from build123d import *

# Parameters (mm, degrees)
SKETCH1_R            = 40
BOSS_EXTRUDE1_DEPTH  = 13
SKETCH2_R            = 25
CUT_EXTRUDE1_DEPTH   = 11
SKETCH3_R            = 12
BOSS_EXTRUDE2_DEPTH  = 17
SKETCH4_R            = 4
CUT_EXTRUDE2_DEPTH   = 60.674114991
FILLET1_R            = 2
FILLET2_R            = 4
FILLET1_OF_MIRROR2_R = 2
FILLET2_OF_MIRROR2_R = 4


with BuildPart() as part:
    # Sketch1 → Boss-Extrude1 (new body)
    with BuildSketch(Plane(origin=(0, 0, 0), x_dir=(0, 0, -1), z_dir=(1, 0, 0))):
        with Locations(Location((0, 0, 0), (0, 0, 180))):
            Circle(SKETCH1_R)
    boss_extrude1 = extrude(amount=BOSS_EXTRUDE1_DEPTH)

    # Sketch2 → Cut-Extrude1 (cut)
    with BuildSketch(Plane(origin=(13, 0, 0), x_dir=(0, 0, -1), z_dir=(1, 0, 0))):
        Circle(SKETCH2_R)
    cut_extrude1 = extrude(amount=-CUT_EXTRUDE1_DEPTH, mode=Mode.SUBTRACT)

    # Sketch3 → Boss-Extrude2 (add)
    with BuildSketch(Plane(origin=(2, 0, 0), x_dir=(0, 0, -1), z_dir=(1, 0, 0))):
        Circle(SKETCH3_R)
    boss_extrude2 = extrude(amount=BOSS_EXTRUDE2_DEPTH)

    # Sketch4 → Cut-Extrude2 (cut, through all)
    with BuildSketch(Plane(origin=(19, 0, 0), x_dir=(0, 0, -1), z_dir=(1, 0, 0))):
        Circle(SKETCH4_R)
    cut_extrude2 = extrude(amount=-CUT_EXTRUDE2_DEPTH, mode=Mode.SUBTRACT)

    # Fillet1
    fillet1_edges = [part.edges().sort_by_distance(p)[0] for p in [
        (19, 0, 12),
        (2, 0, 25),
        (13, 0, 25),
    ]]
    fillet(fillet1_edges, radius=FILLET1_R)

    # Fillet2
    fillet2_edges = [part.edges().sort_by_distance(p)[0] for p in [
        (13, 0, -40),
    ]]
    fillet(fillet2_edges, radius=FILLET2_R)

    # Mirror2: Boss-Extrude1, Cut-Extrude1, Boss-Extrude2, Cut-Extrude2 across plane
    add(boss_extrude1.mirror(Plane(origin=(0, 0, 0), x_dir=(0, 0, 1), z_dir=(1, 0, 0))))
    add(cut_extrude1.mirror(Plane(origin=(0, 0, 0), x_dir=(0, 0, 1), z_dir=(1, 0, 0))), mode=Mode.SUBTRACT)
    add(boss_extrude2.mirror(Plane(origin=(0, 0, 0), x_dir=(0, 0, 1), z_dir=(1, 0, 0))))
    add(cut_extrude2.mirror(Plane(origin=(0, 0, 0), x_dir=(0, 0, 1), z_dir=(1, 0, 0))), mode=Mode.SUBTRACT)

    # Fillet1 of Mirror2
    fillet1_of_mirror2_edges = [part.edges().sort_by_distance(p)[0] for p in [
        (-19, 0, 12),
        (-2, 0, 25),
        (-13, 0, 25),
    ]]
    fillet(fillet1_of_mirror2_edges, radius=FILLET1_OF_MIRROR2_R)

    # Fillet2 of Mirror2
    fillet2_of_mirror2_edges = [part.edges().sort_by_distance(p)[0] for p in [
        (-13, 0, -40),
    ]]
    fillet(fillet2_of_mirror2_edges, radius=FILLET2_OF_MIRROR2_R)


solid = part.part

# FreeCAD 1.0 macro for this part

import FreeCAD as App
import Part
import Sketcher
Q = App.Units.Quantity


def edges_at(feature, points):
    """Names of the edges that pass closest to the given points."""
    edges = feature.Shape.Edges
    near = lambda p: min(range(len(edges)), key=lambda i: edges[i].distToShape(Part.Vertex(*p))[0])
    return sorted({f"Edge{near(p) + 1}" for p in points})

doc = App.newDocument("Part")
body = doc.addObject("PartDesign::Body", "Body")

# Sketch on YZ plane
sketch1 = body.newObject("Sketcher::SketchObject", "Sketch")
sketch1.AttachmentSupport = (doc.getObject("YZ_Plane"), [""])
sketch1.MapMode = "FlatFace"
sketch1.addGeometry(Part.Circle(App.Vector(0, 0, 0), App.Vector(0, 0, 1), 40), False)
sketch1.addConstraint([
    Sketcher.Constraint("Coincident", 0, 3, -1, 1),
    Sketcher.Constraint("Diameter", 0, Q("80 mm")),
])
pad1 = body.newObject("PartDesign::Pad", "Pad")
pad1.Profile = sketch1
pad1.Length = 13

# Sketch on YZ plane
sketch2 = body.newObject("Sketcher::SketchObject", "Sketch001")
sketch2.AttachmentSupport = (doc.getObject("YZ_Plane"), [""])
sketch2.MapMode = "FlatFace"
sketch2.AttachmentOffset = App.Placement(App.Vector(0, 0, 13), App.Rotation())
sketch2.addGeometry(Part.Circle(App.Vector(0, 0, 0), App.Vector(0, 0, 1), 25), False)
sketch2.addConstraint([
    Sketcher.Constraint("Coincident", 0, 3, -1, 1),
    Sketcher.Constraint("Diameter", 0, Q("50 mm")),
])
pocket1 = body.newObject("PartDesign::Pocket", "Pocket")
pocket1.Profile = sketch2
pocket1.Length = 11

# Sketch on YZ plane
sketch3 = body.newObject("Sketcher::SketchObject", "Sketch002")
sketch3.AttachmentSupport = (doc.getObject("YZ_Plane"), [""])
sketch3.MapMode = "FlatFace"
sketch3.AttachmentOffset = App.Placement(App.Vector(0, 0, 2), App.Rotation())
sketch3.addGeometry(Part.Circle(App.Vector(0, 0, 0), App.Vector(0, 0, 1), 12), False)
sketch3.addConstraint([
    Sketcher.Constraint("Coincident", 0, 3, -1, 1),
    Sketcher.Constraint("Diameter", 0, Q("24 mm")),
])
pad2 = body.newObject("PartDesign::Pad", "Pad001")
pad2.Profile = sketch3
pad2.Length = 17

# Sketch on YZ plane
sketch4 = body.newObject("Sketcher::SketchObject", "Sketch003")
sketch4.AttachmentSupport = (doc.getObject("YZ_Plane"), [""])
sketch4.MapMode = "FlatFace"
sketch4.AttachmentOffset = App.Placement(App.Vector(0, 0, 19), App.Rotation())
sketch4.addGeometry(Part.Circle(App.Vector(0, 0, 0), App.Vector(0, 0, 1), 4), False)
sketch4.addConstraint([
    Sketcher.Constraint("Coincident", 0, 3, -1, 1),
    Sketcher.Constraint("Diameter", 0, Q("8 mm")),
])
pocket2 = body.newObject("PartDesign::Pocket", "Pocket001")
pocket2.Profile = sketch4
pocket2.Type = "ThroughAll"
doc.recompute()

fillet = body.newObject("PartDesign::Fillet", "Fillet")
fillet.Base = (pocket2, edges_at(pocket2, [(19, 0, 12), (2, 0, 25), (13, 0, 25)]))
fillet.Radius = 2
doc.recompute()

fillet2 = body.newObject("PartDesign::Fillet", "Fillet001")
fillet2.Base = (fillet, edges_at(fillet, [(13, 0, -40)]))
fillet2.Radius = 4
doc.recompute()

mirrored = body.newObject("PartDesign::Mirrored", "Mirrored")
mirrored.Originals = [pad1, pocket1, pad2, pocket2]
mirrored.MirrorPlane = (doc.getObject("YZ_Plane"), [""])
body.Tip = mirrored
doc.recompute()

fillet3 = body.newObject("PartDesign::Fillet", "Fillet002")
fillet3.Base = (mirrored, edges_at(mirrored, [(-19, 0, 12), (-2, 0, 25), (-13, 0, 25)]))
fillet3.Radius = 2
doc.recompute()

fillet4 = body.newObject("PartDesign::Fillet", "Fillet003")
fillet4.Base = (fillet3, edges_at(fillet3, [(-13, 0, -40)]))
fillet4.Radius = 4

doc.recompute()
